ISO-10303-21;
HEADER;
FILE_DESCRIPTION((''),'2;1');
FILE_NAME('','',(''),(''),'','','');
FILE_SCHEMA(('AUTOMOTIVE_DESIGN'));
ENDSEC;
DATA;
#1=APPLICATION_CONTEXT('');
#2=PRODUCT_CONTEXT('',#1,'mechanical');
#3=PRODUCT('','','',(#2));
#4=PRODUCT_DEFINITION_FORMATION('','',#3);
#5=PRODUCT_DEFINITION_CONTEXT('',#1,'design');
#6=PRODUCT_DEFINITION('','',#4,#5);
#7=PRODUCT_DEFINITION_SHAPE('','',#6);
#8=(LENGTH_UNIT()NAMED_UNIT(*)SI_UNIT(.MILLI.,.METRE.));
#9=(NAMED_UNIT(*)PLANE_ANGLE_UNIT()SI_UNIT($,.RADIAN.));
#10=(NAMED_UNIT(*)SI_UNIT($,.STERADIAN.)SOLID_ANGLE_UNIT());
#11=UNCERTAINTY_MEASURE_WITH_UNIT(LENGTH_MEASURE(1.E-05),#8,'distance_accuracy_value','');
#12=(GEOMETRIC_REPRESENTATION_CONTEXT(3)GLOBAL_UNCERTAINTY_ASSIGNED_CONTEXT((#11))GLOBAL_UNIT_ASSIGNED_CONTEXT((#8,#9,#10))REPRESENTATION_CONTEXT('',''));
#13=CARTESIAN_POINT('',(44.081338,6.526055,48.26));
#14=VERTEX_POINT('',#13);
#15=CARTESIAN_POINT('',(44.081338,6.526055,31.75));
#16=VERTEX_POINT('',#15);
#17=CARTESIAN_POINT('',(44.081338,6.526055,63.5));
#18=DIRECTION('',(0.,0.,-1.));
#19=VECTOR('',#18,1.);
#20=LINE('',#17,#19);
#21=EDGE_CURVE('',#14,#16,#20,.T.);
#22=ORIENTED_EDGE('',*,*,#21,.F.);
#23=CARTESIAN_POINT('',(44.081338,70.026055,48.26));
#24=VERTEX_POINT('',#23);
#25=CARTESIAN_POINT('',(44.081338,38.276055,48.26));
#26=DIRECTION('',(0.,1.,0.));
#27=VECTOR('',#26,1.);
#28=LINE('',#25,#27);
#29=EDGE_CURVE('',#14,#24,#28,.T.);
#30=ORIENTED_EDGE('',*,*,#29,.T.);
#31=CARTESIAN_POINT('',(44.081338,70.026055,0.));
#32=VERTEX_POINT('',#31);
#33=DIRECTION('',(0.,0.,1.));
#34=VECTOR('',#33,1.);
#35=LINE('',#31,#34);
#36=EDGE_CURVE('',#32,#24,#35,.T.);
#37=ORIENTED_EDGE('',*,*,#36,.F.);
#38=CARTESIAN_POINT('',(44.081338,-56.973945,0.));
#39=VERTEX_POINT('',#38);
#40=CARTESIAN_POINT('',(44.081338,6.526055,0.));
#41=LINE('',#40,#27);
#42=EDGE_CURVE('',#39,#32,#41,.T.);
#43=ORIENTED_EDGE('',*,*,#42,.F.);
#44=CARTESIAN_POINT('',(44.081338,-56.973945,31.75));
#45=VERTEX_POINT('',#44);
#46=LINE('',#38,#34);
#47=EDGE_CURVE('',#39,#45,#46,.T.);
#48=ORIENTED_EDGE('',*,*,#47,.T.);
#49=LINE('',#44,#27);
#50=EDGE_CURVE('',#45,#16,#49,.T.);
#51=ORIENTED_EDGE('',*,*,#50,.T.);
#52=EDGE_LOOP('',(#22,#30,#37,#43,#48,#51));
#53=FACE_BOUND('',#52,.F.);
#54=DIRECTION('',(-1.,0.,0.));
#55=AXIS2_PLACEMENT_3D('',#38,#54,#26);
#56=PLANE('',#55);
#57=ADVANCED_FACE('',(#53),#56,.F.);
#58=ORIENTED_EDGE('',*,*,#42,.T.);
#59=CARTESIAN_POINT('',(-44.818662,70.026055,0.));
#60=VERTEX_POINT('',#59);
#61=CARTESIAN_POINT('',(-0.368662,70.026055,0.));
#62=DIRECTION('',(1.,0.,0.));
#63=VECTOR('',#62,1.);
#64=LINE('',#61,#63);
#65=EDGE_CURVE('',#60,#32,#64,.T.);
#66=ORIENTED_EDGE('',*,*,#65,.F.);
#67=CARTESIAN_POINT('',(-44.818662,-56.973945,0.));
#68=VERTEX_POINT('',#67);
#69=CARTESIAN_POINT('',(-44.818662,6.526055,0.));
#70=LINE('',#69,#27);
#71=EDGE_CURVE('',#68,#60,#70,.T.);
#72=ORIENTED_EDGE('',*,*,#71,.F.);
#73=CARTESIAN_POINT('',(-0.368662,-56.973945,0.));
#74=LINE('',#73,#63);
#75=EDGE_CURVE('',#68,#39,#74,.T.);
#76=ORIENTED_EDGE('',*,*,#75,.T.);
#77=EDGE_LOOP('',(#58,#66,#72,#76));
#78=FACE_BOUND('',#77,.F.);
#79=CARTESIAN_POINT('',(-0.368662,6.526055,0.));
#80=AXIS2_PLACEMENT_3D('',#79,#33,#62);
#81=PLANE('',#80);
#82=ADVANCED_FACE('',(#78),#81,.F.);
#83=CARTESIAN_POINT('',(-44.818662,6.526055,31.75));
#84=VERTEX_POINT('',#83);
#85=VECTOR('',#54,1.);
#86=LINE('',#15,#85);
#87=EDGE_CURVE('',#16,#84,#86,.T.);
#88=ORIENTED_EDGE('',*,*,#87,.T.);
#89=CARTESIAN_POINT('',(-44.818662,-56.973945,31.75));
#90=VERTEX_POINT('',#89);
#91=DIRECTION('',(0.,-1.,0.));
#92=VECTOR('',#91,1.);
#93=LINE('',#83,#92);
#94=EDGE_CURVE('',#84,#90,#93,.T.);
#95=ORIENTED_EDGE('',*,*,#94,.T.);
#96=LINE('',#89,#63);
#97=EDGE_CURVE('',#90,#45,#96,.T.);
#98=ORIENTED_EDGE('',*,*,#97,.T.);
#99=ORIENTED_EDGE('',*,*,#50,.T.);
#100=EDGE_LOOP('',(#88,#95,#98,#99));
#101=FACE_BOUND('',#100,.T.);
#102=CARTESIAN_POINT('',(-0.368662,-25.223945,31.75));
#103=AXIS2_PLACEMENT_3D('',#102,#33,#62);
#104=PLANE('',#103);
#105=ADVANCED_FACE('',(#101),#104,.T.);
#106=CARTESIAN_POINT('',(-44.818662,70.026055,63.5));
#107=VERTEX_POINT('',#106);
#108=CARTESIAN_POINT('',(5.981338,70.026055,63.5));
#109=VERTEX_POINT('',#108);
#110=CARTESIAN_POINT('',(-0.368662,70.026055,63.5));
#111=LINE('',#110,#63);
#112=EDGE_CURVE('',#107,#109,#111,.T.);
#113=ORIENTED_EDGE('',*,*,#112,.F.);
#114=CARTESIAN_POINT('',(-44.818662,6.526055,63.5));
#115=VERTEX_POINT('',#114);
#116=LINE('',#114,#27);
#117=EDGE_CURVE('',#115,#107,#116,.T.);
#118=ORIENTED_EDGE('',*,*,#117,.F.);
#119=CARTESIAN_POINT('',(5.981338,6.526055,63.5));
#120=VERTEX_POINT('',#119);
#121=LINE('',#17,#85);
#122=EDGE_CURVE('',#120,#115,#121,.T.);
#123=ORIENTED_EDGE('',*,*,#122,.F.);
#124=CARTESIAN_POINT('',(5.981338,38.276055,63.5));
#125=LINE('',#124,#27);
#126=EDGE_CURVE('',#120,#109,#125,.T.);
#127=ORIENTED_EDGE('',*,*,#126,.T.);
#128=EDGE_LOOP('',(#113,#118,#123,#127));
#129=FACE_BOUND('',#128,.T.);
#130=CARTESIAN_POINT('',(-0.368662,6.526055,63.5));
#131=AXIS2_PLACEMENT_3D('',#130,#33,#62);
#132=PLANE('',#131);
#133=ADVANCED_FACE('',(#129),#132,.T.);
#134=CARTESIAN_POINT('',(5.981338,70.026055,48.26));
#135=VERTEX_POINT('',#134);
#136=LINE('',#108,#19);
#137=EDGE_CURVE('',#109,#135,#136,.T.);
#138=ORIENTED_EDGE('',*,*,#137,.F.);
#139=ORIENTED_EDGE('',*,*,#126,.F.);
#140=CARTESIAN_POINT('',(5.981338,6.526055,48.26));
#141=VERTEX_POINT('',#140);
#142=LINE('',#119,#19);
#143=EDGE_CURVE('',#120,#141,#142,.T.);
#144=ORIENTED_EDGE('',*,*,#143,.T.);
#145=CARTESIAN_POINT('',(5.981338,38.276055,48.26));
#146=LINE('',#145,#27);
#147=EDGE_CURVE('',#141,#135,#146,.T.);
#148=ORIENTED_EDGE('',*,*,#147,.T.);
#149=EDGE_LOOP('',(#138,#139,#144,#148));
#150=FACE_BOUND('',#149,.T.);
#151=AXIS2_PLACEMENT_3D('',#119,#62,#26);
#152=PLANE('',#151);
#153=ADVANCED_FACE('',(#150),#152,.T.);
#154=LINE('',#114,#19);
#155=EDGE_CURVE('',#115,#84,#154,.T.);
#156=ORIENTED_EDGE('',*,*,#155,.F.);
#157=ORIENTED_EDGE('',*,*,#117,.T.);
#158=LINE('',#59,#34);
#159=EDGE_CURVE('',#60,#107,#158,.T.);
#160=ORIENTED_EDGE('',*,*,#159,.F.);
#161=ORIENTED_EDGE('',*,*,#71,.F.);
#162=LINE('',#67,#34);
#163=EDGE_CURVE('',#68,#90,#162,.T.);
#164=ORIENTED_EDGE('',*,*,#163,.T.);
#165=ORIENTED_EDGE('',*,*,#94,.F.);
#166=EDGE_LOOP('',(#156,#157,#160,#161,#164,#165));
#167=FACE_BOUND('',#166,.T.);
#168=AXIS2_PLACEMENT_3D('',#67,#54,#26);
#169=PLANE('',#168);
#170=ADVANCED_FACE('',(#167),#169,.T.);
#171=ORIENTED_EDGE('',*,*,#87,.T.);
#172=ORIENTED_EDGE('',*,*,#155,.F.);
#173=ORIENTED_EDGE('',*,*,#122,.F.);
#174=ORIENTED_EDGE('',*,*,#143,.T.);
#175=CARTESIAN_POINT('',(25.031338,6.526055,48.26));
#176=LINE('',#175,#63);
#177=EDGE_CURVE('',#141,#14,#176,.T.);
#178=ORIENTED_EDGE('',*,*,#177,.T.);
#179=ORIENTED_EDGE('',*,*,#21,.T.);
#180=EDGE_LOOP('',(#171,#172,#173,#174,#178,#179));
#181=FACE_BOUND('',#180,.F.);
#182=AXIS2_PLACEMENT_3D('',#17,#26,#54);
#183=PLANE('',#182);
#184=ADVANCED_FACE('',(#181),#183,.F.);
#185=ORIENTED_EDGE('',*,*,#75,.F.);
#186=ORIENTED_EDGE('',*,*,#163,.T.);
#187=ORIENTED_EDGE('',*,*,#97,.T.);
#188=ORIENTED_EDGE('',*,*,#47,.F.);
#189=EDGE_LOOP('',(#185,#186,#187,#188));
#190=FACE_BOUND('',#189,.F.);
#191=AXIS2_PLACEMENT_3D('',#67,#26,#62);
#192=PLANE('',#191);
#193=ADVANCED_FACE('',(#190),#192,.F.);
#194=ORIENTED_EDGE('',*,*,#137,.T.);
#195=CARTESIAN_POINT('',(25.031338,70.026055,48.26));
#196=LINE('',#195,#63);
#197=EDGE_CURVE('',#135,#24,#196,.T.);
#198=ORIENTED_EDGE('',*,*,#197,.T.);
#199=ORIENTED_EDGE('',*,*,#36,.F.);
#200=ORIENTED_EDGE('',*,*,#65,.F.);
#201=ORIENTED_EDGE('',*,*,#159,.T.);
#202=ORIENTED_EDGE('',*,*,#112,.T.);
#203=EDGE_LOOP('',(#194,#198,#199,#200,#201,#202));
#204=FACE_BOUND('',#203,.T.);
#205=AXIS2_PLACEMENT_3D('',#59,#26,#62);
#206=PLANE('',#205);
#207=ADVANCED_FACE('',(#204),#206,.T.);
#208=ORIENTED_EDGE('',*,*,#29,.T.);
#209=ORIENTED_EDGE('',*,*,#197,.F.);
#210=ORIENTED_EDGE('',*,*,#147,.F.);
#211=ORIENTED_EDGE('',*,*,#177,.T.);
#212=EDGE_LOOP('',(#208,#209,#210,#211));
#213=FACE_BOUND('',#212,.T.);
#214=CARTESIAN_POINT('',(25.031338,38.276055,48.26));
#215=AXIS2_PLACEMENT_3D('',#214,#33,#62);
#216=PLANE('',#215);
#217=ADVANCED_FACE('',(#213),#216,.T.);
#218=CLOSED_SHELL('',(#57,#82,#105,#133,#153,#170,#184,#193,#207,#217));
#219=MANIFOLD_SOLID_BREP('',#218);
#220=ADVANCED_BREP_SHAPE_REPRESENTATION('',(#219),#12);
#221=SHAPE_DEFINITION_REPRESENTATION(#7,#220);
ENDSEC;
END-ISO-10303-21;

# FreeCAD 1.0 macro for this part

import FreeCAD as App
import Part
import Sketcher
Q = App.Units.Quantity

doc = App.newDocument("Part")
body = doc.addObject("PartDesign::Body", "Body")

sketch1 = body.newObject("Sketcher::SketchObject", "Sketch")
sketch1.AttachmentSupport = (doc.getObject("XY_Plane"), [""])
sketch1.MapMode = "FlatFace"
sketch1.addGeometry([
    Part.LineSegment(App.Vector(-45, 70, 0), App.Vector(-45, -57, 0)),
    Part.LineSegment(App.Vector(-45, -57, 0), App.Vector(44, -57, 0)),
    Part.LineSegment(App.Vector(44, -57, 0), App.Vector(44, 70, 0)),
    Part.LineSegment(App.Vector(44, 70, 0), App.Vector(-45, 70, 0)),
], False)
sketch1.addConstraint([
    Sketcher.Constraint("Coincident", 0, 2, 1, 1),
    Sketcher.Constraint("Coincident", 1, 2, 2, 1),
    Sketcher.Constraint("Coincident", 2, 2, 3, 1),
    Sketcher.Constraint("Coincident", 3, 2, 0, 1),
    Sketcher.Constraint("Vertical", 0),
    Sketcher.Constraint("Horizontal", 1),
    Sketcher.Constraint("Vertical", 2),
    Sketcher.Constraint("Horizontal", 3),
    Sketcher.Constraint("DistanceY", 0, 2, 0, 1, Q("5 in")),
    Sketcher.Constraint("DistanceX", 1, 1, 1, 2, Q("3.5 in")),
    Sketcher.Constraint("DistanceX", 0, 2, -1, 1, Q("44.818662 mm")),
    Sketcher.Constraint("DistanceY", 0, 2, -1, 1, Q("56.973945 mm")),
])
pad1 = body.newObject("PartDesign::Pad", "Pad")
pad1.Profile = sketch1
pad1.Length = Q("2.5 in")

sketch2 = body.newObject("Sketcher::SketchObject", "Sketch001")
sketch2.AttachmentSupport = (doc.getObject("XY_Plane"), [""])
sketch2.MapMode = "FlatFace"
sketch2.AttachmentOffset = App.Placement(App.Vector(0, 0, 2.5 * 25.4), App.Rotation())
sketch2.addGeometry([
    Part.LineSegment(App.Vector(6, 70, 0), App.Vector(6, 7, 0)),
    Part.LineSegment(App.Vector(6, 7, 0), App.Vector(44, 7, 0)),
    Part.LineSegment(App.Vector(44, 7, 0), App.Vector(44, 70, 0)),
    Part.LineSegment(App.Vector(44, 70, 0), App.Vector(6, 70, 0)),
], False)
sketch2.addConstraint([
    Sketcher.Constraint("Coincident", 0, 2, 1, 1),
    Sketcher.Constraint("Coincident", 1, 2, 2, 1),
    Sketcher.Constraint("Coincident", 2, 2, 3, 1),
    Sketcher.Constraint("Coincident", 3, 2, 0, 1),
    Sketcher.Constraint("Vertical", 0),
    Sketcher.Constraint("Horizontal", 1),
    Sketcher.Constraint("Vertical", 2),
    Sketcher.Constraint("Horizontal", 3),
    Sketcher.Constraint("DistanceX", 1, 1, 1, 2, Q("1.5 in")),
    Sketcher.Constraint("DistanceY", 0, 2, 0, 1, Q("2.5 in")),
    Sketcher.Constraint("DistanceX", -1, 1, 0, 2, Q("5.981338 mm")),
    Sketcher.Constraint("DistanceY", -1, 1, 0, 2, Q("6.526055 mm")),
])
pocket1 = body.newObject("PartDesign::Pocket", "Pocket")
pocket1.Profile = sketch2
pocket1.Length = Q("0.6 in")

sketch3 = body.newObject("Sketcher::SketchObject", "Sketch002")
sketch3.AttachmentSupport = (doc.getObject("XY_Plane"), [""])
sketch3.MapMode = "FlatFace"
sketch3.AttachmentOffset = App.Placement(App.Vector(0, 0, 2.5 * 25.4), App.Rotation())
sketch3.addGeometry([
    Part.LineSegment(App.Vector(44, 7, 0), App.Vector(-45, 7, 0)),
    Part.LineSegment(App.Vector(-45, 7, 0), App.Vector(-45, -57, 0)),
    Part.LineSegment(App.Vector(-45, -57, 0), App.Vector(44, -57, 0)),
    Part.LineSegment(App.Vector(44, -57, 0), App.Vector(44, 7, 0)),
], False)
sketch3.addConstraint([
    Sketcher.Constraint("Coincident", 0, 2, 1, 1),
    Sketcher.Constraint("Coincident", 1, 2, 2, 1),
    Sketcher.Constraint("Coincident", 2, 2, 3, 1),
    Sketcher.Constraint("Coincident", 3, 2, 0, 1),
    Sketcher.Constraint("Horizontal", 0),
    Sketcher.Constraint("Vertical", 1),
    Sketcher.Constraint("Horizontal", 2),
    Sketcher.Constraint("Vertical", 3),
    Sketcher.Constraint("DistanceX", 0, 2, 0, 1, Q("3.5 in")),
    Sketcher.Constraint("DistanceY", 1, 2, 1, 1, Q("2.5 in")),
    Sketcher.Constraint("DistanceX", 0, 2, -1, 1, Q("44.818662 mm")),
    Sketcher.Constraint("DistanceY", -1, 1, 0, 2, Q("6.526055 mm")),
])
pocket2 = body.newObject("PartDesign::Pocket", "Pocket001")
pocket2.Profile = sketch3
pocket2.Length = Q("1.25 in")

doc.recompute()
